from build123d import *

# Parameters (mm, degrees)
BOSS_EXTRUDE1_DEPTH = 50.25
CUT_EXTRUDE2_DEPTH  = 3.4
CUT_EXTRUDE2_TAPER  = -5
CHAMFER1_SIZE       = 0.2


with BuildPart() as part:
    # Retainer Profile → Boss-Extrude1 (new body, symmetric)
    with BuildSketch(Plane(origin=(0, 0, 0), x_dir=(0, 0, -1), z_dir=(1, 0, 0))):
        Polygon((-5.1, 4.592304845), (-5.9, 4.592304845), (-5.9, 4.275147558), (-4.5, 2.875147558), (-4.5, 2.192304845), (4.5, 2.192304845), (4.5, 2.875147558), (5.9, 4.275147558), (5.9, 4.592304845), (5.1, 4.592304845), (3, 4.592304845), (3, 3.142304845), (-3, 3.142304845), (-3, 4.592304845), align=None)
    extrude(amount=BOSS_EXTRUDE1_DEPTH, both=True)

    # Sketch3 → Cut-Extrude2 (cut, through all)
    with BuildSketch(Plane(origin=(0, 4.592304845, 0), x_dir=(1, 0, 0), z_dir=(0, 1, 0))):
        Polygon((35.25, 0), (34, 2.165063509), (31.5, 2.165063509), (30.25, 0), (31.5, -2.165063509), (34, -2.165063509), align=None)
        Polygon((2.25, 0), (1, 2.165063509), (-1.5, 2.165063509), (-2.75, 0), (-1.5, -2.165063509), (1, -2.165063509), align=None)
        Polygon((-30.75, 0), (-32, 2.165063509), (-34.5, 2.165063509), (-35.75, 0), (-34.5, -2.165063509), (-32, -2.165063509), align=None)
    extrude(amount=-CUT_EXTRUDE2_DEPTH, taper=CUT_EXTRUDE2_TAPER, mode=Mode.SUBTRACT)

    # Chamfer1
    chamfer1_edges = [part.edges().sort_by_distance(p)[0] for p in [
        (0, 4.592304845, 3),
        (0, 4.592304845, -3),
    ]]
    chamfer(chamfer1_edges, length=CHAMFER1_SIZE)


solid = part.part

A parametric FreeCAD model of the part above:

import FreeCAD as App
import Part
import Sketcher
Q = App.Units.Quantity


def edges_at(feature, points):
    """Names of the edges that pass closest to the given points."""
    edges = feature.Shape.Edges
    near = lambda p: min(range(len(edges)), key=lambda i: edges[i].distToShape(Part.Vertex(*p))[0])
    return sorted({f"Edge{near(p) + 1}" for p in points})

doc = App.newDocument("Part")
body = doc.addObject("PartDesign::Body", "Body")

# Sketch on YZ plane
sketch1 = body.newObject("Sketcher::SketchObject", "Sketch")
sketch1.AttachmentSupport = (doc.getObject("YZ_Plane"), [""])
sketch1.MapMode = "FlatFace"
sketch1.addGeometry(Part.LineSegment(App.Vector(4.59, 5.9, 0), App.Vector(4.28, 5.9, 0)), False)
sketch1.addGeometry(Part.LineSegment(App.Vector(4.28, 5.9, 0), App.Vector(2.88, 4.5, 0)), False)
sketch1.addGeometry(Part.LineSegment(App.Vector(2.88, 4.5, 0), App.Vector(2.19, 4.5, 0)), False)
sketch1.addGeometry(Part.LineSegment(App.Vector(2.19, 4.5, 0), App.Vector(2.19, -4.5, 0)), False)
sketch1.addGeometry(Part.LineSegment(App.Vector(2.19, -4.5, 0), App.Vector(2.88, -4.5, 0)), False)
sketch1.addGeometry(Part.LineSegment(App.Vector(2.88, -4.5, 0), App.Vector(4.28, -5.9, 0)), False)
sketch1.addGeometry(Part.LineSegment(App.Vector(4.28, -5.9, 0), App.Vector(4.59, -5.9, 0)), False)
sketch1.addGeometry(Part.LineSegment(App.Vector(4.59, -5.9, 0), App.Vector(4.59, -3, 0)), False)
sketch1.addGeometry(Part.LineSegment(App.Vector(4.59, -3, 0), App.Vector(3.14, -3, 0)), False)
sketch1.addGeometry(Part.LineSegment(App.Vector(3.14, -3, 0), App.Vector(3.14, 3, 0)), False)
sketch1.addGeometry(Part.LineSegment(App.Vector(3.14, 3, 0), App.Vector(4.59, 3, 0)), False)
sketch1.addGeometry(Part.LineSegment(App.Vector(4.59, 3, 0), App.Vector(4.59, 5.9, 0)), False)
sketch1.addConstraint(Sketcher.Constraint("Coincident", 0, 2, 1, 1))
sketch1.addConstraint(Sketcher.Constraint("Coincident", 1, 2, 2, 1))
sketch1.addConstraint(Sketcher.Constraint("Coincident", 2, 2, 3, 1))
sketch1.addConstraint(Sketcher.Constraint("Coincident", 3, 2, 4, 1))
sketch1.addConstraint(Sketcher.Constraint("Coincident", 4, 2, 5, 1))
sketch1.addConstraint(Sketcher.Constraint("Coincident", 5, 2, 6, 1))
sketch1.addConstraint(Sketcher.Constraint("Coincident", 6, 2, 7, 1))
sketch1.addConstraint(Sketcher.Constraint("Coincident", 7, 2, 8, 1))
sketch1.addConstraint(Sketcher.Constraint("Coincident", 8, 2, 9, 1))
sketch1.addConstraint(Sketcher.Constraint("Coincident", 9, 2, 10, 1))
sketch1.addConstraint(Sketcher.Constraint("Coincident", 10, 2, 11, 1))
sketch1.addConstraint(Sketcher.Constraint("Coincident", 11, 2, 0, 1))
sketch1.addConstraint(Sketcher.Constraint("Horizontal", 0))
sketch1.addConstraint(Sketcher.Constraint("Horizontal", 2))
sketch1.addConstraint(Sketcher.Constraint("Vertical", 3))
sketch1.addConstraint(Sketcher.Constraint("Horizontal", 4))
sketch1.addConstraint(Sketcher.Constraint("Horizontal", 6))
sketch1.addConstraint(Sketcher.Constraint("Vertical", 7))
sketch1.addConstraint(Sketcher.Constraint("Horizontal", 8))
sketch1.addConstraint(Sketcher.Constraint("Vertical", 9))
sketch1.addConstraint(Sketcher.Constraint("Horizontal", 10))
sketch1.addConstraint(Sketcher.Constraint("Vertical", 11))
sketch1.addConstraint(Sketcher.Constraint("Symmetric", 1, 2, 4, 2, -1))
sketch1.addConstraint(Sketcher.Constraint("Symmetric", 0, 2, 5, 2, -1))
sketch1.addConstraint(Sketcher.Constraint("Symmetric", 7, 2, 10, 2, -1))
sketch1.addConstraint(Sketcher.Constraint("Perpendicular", 1, 5))
sketch1.addConstraint(Sketcher.Constraint("DistanceY", 3, 2, 3, 1, Q("9 mm")))
sketch1.addConstraint(Sketcher.Constraint("DistanceY", 9, 1, 9, 2, Q("6 mm")))
sketch1.addConstraint(Sketcher.Constraint("DistanceY", 7, 1, 7, 2, Q("2.9 mm")))
sketch1.addConstraint(Sketcher.Constraint("DistanceX", 8, 2, 8, 1, Q("1.45 mm")))
sketch1.addConstraint(Sketcher.Constraint("DistanceX", 3, 2, 6, 2, Q("2.4 mm")))
sketch1.addConstraint(Sketcher.Constraint("DistanceX", 0, 2, 0, 1, Q("0.317157 mm")))
sketch1.addConstraint(Sketcher.Constraint("DistanceX", -1, 1, 0, 2, Q("4.275148 mm")))
pad1 = body.newObject("PartDesign::Pad", "Pad")
pad1.Profile = sketch1
pad1.Length = 100.5
pad1.Midplane = True

# Sketch on XZ plane
sketch2 = body.newObject("Sketcher::SketchObject", "Sketch001")
sketch2.AttachmentSupport = (doc.getObject("XZ_Plane"), [""])
sketch2.MapMode = "FlatFace"
sketch2.AttachmentOffset = App.Placement(App.Vector(0, 0, -4.592305), App.Rotation())
sketch2.addGeometry(Part.LineSegment(App.Vector(35.2, 0, 0), App.Vector(34, -2.2, 0)), False)
sketch2.addGeometry(Part.LineSegment(App.Vector(34, -2.2, 0), App.Vector(31.5, -2.2, 0)), False)
sketch2.addGeometry(Part.LineSegment(App.Vector(31.5, -2.2, 0), App.Vector(30.2, 0, 0)), False)
sketch2.addGeometry(Part.LineSegment(App.Vector(30.2, 0, 0), App.Vector(31.5, 2.2, 0)), False)
sketch2.addGeometry(Part.LineSegment(App.Vector(31.5, 2.2, 0), App.Vector(34, 2.2, 0)), False)
sketch2.addGeometry(Part.LineSegment(App.Vector(34, 2.2, 0), App.Vector(35.2, 0, 0)), False)
sketch2.addGeometry(Part.LineSegment(App.Vector(2.2, 0, 0), App.Vector(1, -2.2, 0)), False)
sketch2.addGeometry(Part.LineSegment(App.Vector(1, -2.2, 0), App.Vector(-1.5, -2.2, 0)), False)
sketch2.addGeometry(Part.LineSegment(App.Vector(-1.5, -2.2, 0), App.Vector(-2.8, 0, 0)), False)
sketch2.addGeometry(Part.LineSegment(App.Vector(-2.8, 0, 0), App.Vector(-1.5, 2.2, 0)), False)
sketch2.addGeometry(Part.LineSegment(App.Vector(-1.5, 2.2, 0), App.Vector(1, 2.2, 0)), False)
sketch2.addGeometry(Part.LineSegment(App.Vector(1, 2.2, 0), App.Vector(2.2, 0, 0)), False)
sketch2.addGeometry(Part.LineSegment(App.Vector(-30.8, 0, 0), App.Vector(-32, -2.2, 0)), False)
sketch2.addGeometry(Part.LineSegment(App.Vector(-32, -2.2, 0), App.Vector(-34.5, -2.2, 0)), False)
sketch2.addGeometry(Part.LineSegment(App.Vector(-34.5, -2.2, 0), App.Vector(-35.8, 0, 0)), False)
sketch2.addGeometry(Part.LineSegment(App.Vector(-35.8, 0, 0), App.Vector(-34.5, 2.2, 0)), False)
sketch2.addGeometry(Part.LineSegment(App.Vector(-34.5, 2.2, 0), App.Vector(-32, 2.2, 0)), False)
sketch2.addGeometry(Part.LineSegment(App.Vector(-32, 2.2, 0), App.Vector(-30.8, 0, 0)), False)
sketch2.addConstraint(Sketcher.Constraint("Coincident", 0, 2, 1, 1))
sketch2.addConstraint(Sketcher.Constraint("Coincident", 1, 2, 2, 1))
sketch2.addConstraint(Sketcher.Constraint("Coincident", 2, 2, 3, 1))
sketch2.addConstraint(Sketcher.Constraint("Coincident", 3, 2, 4, 1))
sketch2.addConstraint(Sketcher.Constraint("Coincident", 4, 2, 5, 1))
sketch2.addConstraint(Sketcher.Constraint("Coincident", 5, 2, 0, 1))
sketch2.addConstraint(Sketcher.Constraint("Coincident", 6, 2, 7, 1))
sketch2.addConstraint(Sketcher.Constraint("Coincident", 7, 2, 8, 1))
sketch2.addConstraint(Sketcher.Constraint("Coincident", 8, 2, 9, 1))
sketch2.addConstraint(Sketcher.Constraint("Coincident", 9, 2, 10, 1))
sketch2.addConstraint(Sketcher.Constraint("Coincident", 10, 2, 11, 1))
sketch2.addConstraint(Sketcher.Constraint("Coincident", 11, 2, 6, 1))
sketch2.addConstraint(Sketcher.Constraint("Coincident", 12, 2, 13, 1))
sketch2.addConstraint(Sketcher.Constraint("Coincident", 13, 2, 14, 1))
sketch2.addConstraint(Sketcher.Constraint("Coincident", 14, 2, 15, 1))
sketch2.addConstraint(Sketcher.Constraint("Coincident", 15, 2, 16, 1))
sketch2.addConstraint(Sketcher.Constraint("Coincident", 16, 2, 17, 1))
sketch2.addConstraint(Sketcher.Constraint("Coincident", 17, 2, 12, 1))
sketch2.addConstraint(Sketcher.Constraint("Horizontal", 1))
sketch2.addConstraint(Sketcher.Constraint("Horizontal", 4))
sketch2.addConstraint(Sketcher.Constraint("Horizontal", 7))
sketch2.addConstraint(Sketcher.Constraint("Horizontal", 10))
sketch2.addConstraint(Sketcher.Constraint("Horizontal", 13))
sketch2.addConstraint(Sketcher.Constraint("Horizontal", 16))
sketch2.addConstraint(Sketcher.Constraint("Symmetric", 1, 2, 3, 2, -1))
sketch2.addConstraint(Sketcher.Constraint("Symmetric", 7, 2, 9, 2, -1))
sketch2.addConstraint(Sketcher.Constraint("Symmetric", 13, 2, 15, 2, -1))
sketch2.addConstraint(Sketcher.Constraint("PointOnObject", 2, 2, -1))
sketch2.addConstraint(Sketcher.Constraint("PointOnObject", 5, 2, -1))
sketch2.addConstraint(Sketcher.Constraint("PointOnObject", 8, 2, -1))
sketch2.addConstraint(Sketcher.Constraint("PointOnObject", 11, 2, -1))
sketch2.addConstraint(Sketcher.Constraint("PointOnObject", 14, 2, -1))
sketch2.addConstraint(Sketcher.Constraint("PointOnObject", 17, 2, -1))
sketch2.addConstraint(Sketcher.Constraint("Parallel", 0, 3))
sketch2.addConstraint(Sketcher.Constraint("Parallel", 2, 5))
sketch2.addConstraint(Sketcher.Constraint("Parallel", 3, 6))
sketch2.addConstraint(Sketcher.Constraint("Parallel", 5, 8))
sketch2.addConstraint(Sketcher.Constraint("Parallel", 8, 11))
sketch2.addConstraint(Sketcher.Constraint("Parallel", 9, 12))
sketch2.addConstraint(Sketcher.Constraint("Parallel", 11, 14))
sketch2.addConstraint(Sketcher.Constraint("Parallel", 14, 17))
sketch2.addConstraint(Sketcher.Constraint("Horizontal", 1, 2, 6, 2))
sketch2.addConstraint(Sketcher.Constraint("Horizontal", 7, 2, 12, 2))
sketch2.addConstraint(Sketcher.Constraint("Equal", 4, 7))
sketch2.addConstraint(Sketcher.Constraint("Equal", 10, 13))
sketch2.addConstraint(Sketcher.Constraint("Angle", 0, Q("-120 deg")))
sketch2.addConstraint(Sketcher.Constraint("DistanceX", 1, 2, 1, 1, Q("2.5 mm")))
sketch2.addConstraint(Sketcher.Constraint("DistanceX", -1, 1, 0, 2, Q("34 mm")))
sketch2.addConstraint(Sketcher.Constraint("DistanceX", -1, 1, 6, 2, Q("1 mm")))
sketch2.addConstraint(Sketcher.Constraint("DistanceX", 12, 2, -1, 1, Q("32 mm")))
sketch2.addConstraint(Sketcher.Constraint("DistanceX", 2, 2, 5, 2, Q("5 mm")))
pocket1 = body.newObject("PartDesign::Pocket", "Pocket")
pocket1.Profile = sketch2
pocket1.Type = "ThroughAll"
pocket1.Reversed = True
pocket1.TaperAngle = 5
doc.recompute()

chamfer = body.newObject("PartDesign::Chamfer", "Chamfer")
chamfer.Base = (pocket1, edges_at(pocket1, [(0, 4.592, 3), (0, 4.592, -3)]))
chamfer.Size = 0.2

doc.recompute()
